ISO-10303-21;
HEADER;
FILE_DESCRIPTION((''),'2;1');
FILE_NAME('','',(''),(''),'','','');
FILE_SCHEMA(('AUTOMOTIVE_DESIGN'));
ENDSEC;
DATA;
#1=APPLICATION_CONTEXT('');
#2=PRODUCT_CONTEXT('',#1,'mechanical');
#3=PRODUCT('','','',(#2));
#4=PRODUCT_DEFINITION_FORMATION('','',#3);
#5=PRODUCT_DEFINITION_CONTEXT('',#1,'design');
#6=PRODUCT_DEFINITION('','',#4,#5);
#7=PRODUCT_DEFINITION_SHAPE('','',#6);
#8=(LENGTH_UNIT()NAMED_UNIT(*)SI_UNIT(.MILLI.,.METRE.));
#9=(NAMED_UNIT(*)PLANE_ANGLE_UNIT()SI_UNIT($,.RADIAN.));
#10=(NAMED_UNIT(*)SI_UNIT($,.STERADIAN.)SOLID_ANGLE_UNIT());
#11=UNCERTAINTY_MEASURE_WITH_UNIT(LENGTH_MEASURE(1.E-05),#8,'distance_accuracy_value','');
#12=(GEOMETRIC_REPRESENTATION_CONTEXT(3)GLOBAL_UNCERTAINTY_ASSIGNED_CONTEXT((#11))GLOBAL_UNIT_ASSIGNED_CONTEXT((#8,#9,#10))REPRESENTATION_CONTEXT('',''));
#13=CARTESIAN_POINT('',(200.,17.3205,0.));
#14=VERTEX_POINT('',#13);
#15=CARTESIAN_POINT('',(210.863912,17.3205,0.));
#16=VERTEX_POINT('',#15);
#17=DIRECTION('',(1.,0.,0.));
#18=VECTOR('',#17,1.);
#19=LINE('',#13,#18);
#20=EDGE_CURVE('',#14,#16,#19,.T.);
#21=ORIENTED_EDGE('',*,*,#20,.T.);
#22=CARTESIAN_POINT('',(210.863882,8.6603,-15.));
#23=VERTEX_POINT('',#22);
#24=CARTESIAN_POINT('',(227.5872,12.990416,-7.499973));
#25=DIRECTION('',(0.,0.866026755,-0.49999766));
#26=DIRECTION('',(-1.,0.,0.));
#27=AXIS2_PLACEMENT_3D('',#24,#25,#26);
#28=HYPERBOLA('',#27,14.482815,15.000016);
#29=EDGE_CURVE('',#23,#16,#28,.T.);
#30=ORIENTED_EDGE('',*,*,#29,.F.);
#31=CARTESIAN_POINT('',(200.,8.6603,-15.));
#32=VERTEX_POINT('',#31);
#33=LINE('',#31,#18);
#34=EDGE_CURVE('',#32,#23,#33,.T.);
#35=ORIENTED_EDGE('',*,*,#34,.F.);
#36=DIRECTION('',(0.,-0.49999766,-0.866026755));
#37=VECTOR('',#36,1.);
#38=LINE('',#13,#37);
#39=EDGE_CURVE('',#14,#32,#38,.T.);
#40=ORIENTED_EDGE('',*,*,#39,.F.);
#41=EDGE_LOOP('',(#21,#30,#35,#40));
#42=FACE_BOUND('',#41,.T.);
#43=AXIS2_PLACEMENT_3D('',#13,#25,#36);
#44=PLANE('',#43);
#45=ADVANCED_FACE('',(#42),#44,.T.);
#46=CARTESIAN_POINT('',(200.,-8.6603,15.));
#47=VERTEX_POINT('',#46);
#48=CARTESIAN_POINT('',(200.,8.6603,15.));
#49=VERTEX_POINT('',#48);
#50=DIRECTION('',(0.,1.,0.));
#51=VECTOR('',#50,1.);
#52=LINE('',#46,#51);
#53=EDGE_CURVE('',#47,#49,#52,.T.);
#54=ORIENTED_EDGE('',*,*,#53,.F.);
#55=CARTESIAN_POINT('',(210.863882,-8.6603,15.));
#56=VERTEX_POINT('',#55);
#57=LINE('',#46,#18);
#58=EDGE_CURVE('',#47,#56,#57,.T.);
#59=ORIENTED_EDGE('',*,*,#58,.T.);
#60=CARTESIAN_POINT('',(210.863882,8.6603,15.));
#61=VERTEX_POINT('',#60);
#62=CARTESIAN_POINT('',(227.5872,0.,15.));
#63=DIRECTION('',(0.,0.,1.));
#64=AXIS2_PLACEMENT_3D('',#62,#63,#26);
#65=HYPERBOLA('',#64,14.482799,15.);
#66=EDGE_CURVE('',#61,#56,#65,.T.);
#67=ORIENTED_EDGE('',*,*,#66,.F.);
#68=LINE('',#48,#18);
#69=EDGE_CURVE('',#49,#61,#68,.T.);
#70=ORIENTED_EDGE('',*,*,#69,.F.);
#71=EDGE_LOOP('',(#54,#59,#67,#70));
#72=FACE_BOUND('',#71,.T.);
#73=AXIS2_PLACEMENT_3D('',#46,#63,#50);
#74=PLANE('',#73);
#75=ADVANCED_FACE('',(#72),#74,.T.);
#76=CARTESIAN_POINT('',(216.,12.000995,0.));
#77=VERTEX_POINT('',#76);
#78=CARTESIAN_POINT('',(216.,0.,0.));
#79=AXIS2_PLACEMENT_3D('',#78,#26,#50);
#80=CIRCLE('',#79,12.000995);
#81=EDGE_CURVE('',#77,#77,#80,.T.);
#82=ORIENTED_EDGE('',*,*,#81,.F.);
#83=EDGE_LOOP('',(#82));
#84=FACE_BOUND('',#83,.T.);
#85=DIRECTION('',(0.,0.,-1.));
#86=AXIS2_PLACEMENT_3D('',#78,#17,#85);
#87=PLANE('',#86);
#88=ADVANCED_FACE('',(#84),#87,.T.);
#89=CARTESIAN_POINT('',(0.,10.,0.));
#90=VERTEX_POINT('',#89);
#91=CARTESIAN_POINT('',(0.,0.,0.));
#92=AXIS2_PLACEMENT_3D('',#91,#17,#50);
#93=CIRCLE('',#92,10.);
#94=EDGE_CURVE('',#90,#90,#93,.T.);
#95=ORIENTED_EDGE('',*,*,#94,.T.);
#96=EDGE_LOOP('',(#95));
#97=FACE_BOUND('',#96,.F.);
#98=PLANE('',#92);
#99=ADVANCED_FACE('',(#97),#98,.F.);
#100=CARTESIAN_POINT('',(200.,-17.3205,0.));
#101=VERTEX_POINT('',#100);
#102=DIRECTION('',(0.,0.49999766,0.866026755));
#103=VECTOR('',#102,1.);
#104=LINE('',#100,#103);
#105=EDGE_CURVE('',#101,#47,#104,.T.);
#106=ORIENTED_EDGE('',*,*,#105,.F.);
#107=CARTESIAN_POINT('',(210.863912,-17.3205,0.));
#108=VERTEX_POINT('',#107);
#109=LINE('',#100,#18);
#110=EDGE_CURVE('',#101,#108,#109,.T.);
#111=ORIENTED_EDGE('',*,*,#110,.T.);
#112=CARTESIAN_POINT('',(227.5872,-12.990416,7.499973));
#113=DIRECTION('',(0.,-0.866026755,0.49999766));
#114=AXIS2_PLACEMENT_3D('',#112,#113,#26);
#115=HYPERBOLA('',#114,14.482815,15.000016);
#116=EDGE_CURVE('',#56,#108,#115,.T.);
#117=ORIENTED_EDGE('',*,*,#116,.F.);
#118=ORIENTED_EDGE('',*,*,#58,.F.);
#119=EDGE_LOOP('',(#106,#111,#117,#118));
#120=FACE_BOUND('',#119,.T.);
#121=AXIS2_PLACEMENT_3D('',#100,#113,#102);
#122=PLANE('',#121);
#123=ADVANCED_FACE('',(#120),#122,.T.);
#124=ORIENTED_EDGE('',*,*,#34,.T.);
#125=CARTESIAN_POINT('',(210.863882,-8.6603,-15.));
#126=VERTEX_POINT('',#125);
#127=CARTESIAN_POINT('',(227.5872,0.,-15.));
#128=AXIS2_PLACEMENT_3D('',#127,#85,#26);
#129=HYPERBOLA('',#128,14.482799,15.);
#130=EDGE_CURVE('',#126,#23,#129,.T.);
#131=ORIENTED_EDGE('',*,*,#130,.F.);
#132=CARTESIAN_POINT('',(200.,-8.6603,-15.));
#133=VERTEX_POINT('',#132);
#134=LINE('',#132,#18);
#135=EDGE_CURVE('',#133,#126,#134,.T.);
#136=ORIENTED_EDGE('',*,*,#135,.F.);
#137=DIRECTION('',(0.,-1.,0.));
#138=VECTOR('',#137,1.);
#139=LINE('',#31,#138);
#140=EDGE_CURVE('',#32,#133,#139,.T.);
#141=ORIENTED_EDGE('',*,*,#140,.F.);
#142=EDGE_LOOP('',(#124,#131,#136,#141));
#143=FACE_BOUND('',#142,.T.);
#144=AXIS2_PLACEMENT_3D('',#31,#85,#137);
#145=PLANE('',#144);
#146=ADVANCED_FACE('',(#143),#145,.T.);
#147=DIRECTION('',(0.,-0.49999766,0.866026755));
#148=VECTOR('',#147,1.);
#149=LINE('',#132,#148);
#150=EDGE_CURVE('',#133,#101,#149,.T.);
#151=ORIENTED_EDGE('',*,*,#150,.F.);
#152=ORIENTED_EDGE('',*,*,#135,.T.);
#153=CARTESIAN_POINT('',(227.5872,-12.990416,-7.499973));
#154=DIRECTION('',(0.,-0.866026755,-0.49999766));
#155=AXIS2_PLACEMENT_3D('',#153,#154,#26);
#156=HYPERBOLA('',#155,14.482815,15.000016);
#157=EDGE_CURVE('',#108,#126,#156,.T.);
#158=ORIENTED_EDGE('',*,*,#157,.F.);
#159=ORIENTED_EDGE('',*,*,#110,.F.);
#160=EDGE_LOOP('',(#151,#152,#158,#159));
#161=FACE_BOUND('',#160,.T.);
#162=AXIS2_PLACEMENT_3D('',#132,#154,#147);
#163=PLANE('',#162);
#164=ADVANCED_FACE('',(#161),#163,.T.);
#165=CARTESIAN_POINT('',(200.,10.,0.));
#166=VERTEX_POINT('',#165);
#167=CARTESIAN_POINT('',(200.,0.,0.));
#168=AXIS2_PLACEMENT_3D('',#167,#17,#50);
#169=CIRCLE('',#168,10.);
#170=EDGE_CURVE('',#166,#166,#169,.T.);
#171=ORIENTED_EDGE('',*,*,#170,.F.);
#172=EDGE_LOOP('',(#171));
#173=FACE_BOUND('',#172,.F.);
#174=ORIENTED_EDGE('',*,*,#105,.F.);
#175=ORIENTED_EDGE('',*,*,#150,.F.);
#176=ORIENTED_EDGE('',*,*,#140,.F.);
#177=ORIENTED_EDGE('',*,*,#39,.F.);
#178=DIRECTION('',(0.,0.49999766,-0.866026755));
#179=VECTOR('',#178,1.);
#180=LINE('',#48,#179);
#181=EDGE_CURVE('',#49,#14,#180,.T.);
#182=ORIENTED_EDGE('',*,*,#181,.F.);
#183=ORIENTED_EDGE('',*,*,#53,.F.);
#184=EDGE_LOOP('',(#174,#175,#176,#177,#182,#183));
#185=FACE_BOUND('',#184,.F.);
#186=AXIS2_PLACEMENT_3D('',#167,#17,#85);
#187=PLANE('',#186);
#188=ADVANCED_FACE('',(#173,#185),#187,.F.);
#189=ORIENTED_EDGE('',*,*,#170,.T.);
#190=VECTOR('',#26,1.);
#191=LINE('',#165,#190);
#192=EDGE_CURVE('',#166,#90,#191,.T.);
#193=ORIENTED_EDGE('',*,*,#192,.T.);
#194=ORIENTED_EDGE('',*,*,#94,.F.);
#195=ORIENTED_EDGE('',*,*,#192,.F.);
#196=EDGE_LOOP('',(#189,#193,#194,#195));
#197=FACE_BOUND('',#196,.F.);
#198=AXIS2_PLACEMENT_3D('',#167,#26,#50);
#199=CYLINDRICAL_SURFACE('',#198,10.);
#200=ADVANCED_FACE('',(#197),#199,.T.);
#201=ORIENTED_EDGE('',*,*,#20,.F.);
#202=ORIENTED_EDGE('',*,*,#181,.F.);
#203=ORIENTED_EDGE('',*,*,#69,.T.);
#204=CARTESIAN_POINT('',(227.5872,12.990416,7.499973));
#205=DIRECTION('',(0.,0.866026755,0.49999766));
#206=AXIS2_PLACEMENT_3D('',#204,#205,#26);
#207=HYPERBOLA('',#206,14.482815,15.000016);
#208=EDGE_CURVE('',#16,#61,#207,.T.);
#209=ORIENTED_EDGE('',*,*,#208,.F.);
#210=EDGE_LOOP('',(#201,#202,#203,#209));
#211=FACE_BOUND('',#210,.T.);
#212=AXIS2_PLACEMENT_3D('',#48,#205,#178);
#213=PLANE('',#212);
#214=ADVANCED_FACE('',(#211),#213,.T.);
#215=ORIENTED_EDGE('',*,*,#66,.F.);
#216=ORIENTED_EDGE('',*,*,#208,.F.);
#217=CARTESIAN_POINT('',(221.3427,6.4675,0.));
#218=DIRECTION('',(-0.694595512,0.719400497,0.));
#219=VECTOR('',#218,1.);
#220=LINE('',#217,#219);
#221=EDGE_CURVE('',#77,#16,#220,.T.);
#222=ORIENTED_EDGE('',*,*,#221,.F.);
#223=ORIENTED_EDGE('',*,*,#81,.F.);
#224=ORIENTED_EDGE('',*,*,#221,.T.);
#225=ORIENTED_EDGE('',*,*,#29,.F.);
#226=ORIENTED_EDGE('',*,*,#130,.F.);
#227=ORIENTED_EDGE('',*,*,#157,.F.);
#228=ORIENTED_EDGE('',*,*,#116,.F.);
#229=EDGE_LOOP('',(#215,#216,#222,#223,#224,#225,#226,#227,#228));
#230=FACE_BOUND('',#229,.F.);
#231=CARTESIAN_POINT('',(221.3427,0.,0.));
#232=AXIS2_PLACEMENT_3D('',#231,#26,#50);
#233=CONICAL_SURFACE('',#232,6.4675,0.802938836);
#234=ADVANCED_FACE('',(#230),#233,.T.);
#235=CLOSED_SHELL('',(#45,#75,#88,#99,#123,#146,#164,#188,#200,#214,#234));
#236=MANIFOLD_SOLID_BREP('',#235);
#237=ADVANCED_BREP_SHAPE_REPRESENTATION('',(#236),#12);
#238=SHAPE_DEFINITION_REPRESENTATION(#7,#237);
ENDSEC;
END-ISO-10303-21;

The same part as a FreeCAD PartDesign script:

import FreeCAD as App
import Part
import Sketcher

V = App.Vector
Q = App.Units.Quantity


def add_polygon(sketch, points):
    """Adds a closed chain of lines whose ends are joined by coincident constraints."""
    first, n = sketch.GeometryCount, len(points)
    for a, b in zip(points, points[1:] + points[:1]):
        sketch.addGeometry(Part.LineSegment(App.Vector(*a, 0), App.Vector(*b, 0)), False)
    for i in range(n):
        sketch.addConstraint(Sketcher.Constraint("Coincident", first + i, 2, first + (i + 1) % n, 1))

doc = App.newDocument("Part")
body = doc.addObject("PartDesign::Body", "Body")

# Sketch on XY plane
sketch1 = body.newObject("Sketcher::SketchObject", "Sketch")
sketch1.AttachmentSupport = (doc.getObject("XY_Plane"), [""])
sketch1.MapMode = "FlatFace"
add_polygon(sketch1, [(0, 10), (0, 0), (200, 0), (200, 10)])  # lines 0-3
sketch1.addConstraint([
    Sketcher.Constraint("Vertical", 0),
    Sketcher.Constraint("Horizontal", 1),
    Sketcher.Constraint("Vertical", 2),
    Sketcher.Constraint("Horizontal", 3),
    Sketcher.Constraint("Coincident", 0, 2, -1, 1),
    Sketcher.Constraint("DistanceX", 1, 1, 1, 2, Q("200 mm")),
    Sketcher.Constraint("DistanceY", 0, 2, 0, 1, Q("10 mm")),
])
revolution = body.newObject("PartDesign::Revolution", "Revolution")
revolution.Profile = sketch1
revolution.ReferenceAxis = (sketch1, ["H_Axis"])
revolution.Angle = 360

# Sketch on YZ plane
sketch2 = body.newObject("Sketcher::SketchObject", "Sketch001")
sketch2.AttachmentSupport = (doc.getObject("YZ_Plane"), [""])
sketch2.MapMode = "FlatFace"
sketch2.AttachmentOffset = App.Placement(V(0, 0, 200), App.Rotation())
add_polygon(sketch2, [(8.6603, -15), (17.3205, 0), (8.6603, 15), (-8.6603, 15), (-17.3205, 0), (-8.6603, -15)])  # lines 0-5
sketch2.addConstraint([
    Sketcher.Constraint("Horizontal", 2),
    Sketcher.Constraint("Horizontal", 5),
    Sketcher.Constraint("Symmetric", 0, 2, 3, 2, -1, 1),
    Sketcher.Constraint("Symmetric", 1, 2, 4, 2, -1, 1),
    Sketcher.Constraint("PointOnObject", 0, 2, -1),
    Sketcher.Constraint("Parallel", 0, 3),
    Sketcher.Constraint("Vertical", 2, 2, 4, 2),
    Sketcher.Constraint("DistanceY", -1, 1, 1, 2, Q("15 mm")),
    Sketcher.Constraint("Angle", 0, Q("60.0002 deg")),
    Sketcher.Constraint("DistanceX", 2, 2, 2, 1, Q("17.3206 mm")),
])
pad1 = body.newObject("PartDesign::Pad", "Pad")
pad1.Profile = sketch2
pad1.Length = 16

# Sketch on XY plane
sketch3 = body.newObject("Sketcher::SketchObject", "Sketch002")
sketch3.AttachmentSupport = (doc.getObject("XY_Plane"), [""])
sketch3.MapMode = "FlatFace"
add_polygon(sketch3, [(221.3427, 24.4808), (203.9505, 24.4808), (221.3427, 6.4675)])  # lines 0-2
sketch3.addConstraint([
    Sketcher.Constraint("Horizontal", 0),
    Sketcher.Constraint("Vertical", 2),
    Sketcher.Constraint("DistanceX", 0, 2, 0, 1, Q("17.3922 mm")),
    Sketcher.Constraint("DistanceY", 2, 1, 2, 2, Q("18.0133 mm")),
    Sketcher.Constraint("DistanceX", -1, 1, 0, 2, Q("203.9505 mm")),
    Sketcher.Constraint("DistanceY", -1, 1, 0, 2, Q("24.4808 mm")),
])
groove = body.newObject("PartDesign::Groove", "Groove")
groove.Profile = sketch3
groove.ReferenceAxis = (sketch3, ["H_Axis"])
groove.Angle = 360

doc.recompute()
